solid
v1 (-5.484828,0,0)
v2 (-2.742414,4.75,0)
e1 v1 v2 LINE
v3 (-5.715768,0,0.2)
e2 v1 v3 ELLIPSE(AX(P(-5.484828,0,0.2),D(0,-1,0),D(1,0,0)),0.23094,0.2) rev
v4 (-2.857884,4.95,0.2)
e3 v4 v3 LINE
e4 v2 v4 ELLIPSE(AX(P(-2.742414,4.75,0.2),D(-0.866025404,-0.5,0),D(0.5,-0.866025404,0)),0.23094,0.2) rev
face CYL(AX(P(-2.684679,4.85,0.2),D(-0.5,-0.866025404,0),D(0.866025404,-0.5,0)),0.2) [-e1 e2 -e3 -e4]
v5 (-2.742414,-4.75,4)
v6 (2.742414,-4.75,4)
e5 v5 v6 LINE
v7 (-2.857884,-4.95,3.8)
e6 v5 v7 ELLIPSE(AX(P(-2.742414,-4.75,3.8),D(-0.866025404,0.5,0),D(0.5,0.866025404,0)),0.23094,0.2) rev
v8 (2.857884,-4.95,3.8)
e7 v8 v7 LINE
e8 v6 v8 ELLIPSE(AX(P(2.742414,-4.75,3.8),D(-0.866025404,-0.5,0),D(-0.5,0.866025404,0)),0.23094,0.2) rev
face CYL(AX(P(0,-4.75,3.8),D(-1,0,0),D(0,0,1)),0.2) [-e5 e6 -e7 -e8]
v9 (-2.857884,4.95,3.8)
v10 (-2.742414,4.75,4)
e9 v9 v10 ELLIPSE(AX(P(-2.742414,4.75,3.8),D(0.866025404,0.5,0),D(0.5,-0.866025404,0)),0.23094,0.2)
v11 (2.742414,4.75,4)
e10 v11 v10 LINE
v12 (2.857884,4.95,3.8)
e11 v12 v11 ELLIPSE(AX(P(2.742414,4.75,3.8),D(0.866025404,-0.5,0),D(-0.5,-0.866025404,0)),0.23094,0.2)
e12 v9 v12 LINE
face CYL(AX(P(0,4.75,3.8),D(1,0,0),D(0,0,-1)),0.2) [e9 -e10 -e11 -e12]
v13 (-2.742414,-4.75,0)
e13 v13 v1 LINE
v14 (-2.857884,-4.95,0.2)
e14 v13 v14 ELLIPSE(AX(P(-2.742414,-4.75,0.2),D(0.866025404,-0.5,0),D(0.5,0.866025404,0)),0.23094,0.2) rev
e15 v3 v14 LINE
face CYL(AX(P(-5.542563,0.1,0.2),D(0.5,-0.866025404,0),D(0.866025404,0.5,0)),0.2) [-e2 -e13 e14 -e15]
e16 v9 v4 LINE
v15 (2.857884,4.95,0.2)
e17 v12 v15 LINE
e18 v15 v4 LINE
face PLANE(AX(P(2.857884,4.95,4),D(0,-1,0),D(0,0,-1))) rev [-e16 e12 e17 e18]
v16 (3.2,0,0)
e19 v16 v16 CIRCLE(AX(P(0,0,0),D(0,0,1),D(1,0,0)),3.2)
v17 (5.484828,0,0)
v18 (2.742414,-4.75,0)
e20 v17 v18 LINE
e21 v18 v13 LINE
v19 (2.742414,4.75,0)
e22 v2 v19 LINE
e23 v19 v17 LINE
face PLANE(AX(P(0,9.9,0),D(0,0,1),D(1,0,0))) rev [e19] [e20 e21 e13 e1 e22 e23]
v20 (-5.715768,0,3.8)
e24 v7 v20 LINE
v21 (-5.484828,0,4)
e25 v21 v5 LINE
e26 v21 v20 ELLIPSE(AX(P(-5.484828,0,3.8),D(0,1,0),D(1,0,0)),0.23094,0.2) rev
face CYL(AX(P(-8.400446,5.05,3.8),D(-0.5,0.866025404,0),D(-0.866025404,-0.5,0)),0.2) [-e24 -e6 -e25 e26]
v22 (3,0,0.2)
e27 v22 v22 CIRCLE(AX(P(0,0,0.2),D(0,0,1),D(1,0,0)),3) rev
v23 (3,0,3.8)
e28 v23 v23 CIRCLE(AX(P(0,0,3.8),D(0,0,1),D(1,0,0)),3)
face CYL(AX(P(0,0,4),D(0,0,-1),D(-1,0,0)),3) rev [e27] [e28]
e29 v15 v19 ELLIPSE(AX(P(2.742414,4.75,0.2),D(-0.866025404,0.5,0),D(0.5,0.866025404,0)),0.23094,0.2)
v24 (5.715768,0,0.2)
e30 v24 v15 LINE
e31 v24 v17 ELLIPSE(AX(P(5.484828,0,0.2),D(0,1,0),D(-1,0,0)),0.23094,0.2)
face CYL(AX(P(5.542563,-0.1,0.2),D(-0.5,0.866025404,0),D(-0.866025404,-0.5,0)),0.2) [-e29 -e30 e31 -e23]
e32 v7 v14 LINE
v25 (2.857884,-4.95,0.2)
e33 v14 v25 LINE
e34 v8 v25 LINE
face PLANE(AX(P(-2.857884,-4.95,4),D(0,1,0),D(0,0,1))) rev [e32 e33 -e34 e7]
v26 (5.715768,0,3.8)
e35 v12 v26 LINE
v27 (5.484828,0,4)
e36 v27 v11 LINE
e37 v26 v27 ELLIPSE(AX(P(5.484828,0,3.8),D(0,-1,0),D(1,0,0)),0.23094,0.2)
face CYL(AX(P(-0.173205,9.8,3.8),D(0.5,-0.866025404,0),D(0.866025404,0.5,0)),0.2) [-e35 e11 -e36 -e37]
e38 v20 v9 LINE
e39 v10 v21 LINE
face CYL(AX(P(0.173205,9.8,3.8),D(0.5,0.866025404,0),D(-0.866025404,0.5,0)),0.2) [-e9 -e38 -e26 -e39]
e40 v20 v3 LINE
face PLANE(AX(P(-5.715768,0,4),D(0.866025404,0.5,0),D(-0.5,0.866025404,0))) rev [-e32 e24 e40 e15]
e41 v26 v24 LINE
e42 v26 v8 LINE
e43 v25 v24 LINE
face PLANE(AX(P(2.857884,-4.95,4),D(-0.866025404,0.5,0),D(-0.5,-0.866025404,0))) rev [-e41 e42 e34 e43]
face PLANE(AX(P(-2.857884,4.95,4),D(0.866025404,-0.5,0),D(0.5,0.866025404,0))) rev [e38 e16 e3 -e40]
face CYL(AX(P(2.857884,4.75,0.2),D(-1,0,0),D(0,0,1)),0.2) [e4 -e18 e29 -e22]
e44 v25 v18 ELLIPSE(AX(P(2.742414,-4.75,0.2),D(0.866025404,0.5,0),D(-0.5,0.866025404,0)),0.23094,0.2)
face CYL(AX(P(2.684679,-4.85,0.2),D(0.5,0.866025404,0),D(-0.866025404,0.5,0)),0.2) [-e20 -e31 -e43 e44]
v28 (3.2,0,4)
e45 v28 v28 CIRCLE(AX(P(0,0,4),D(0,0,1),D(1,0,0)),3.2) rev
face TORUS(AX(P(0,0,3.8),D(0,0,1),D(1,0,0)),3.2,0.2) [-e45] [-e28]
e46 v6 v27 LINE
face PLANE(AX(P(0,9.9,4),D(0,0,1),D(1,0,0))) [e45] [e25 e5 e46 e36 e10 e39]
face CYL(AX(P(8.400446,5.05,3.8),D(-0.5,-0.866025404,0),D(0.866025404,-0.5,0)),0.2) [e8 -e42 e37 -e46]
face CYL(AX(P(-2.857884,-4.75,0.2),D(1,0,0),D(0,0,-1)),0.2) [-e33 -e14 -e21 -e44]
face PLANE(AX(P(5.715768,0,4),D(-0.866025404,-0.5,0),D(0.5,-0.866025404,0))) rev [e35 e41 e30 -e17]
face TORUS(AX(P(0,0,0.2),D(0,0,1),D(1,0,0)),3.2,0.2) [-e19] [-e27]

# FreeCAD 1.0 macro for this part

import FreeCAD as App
import Part
import Sketcher

V = App.Vector
Q = App.Units.Quantity


def edges_at(feature, points):
    """Names of the edges that pass closest to the given points."""
    edges = feature.Shape.Edges
    near = lambda p: min(range(len(edges)), key=lambda i: edges[i].distToShape(Part.Vertex(*p))[0])
    return sorted({f"Edge{near(p) + 1}" for p in points})


def add_polygon(sketch, points):
    """Adds a closed chain of lines whose ends are joined by coincident constraints."""
    first, n = sketch.GeometryCount, len(points)
    for a, b in zip(points, points[1:] + points[:1]):
        sketch.addGeometry(Part.LineSegment(App.Vector(*a, 0), App.Vector(*b, 0)), False)
    for i in range(n):
        sketch.addConstraint(Sketcher.Constraint("Coincident", first + i, 2, first + (i + 1) % n, 1))

doc = App.newDocument("Part")
body = doc.addObject("PartDesign::Body", "Body")

sketch1 = body.newObject("Sketcher::SketchObject", "Sketch")
sketch1.AttachmentSupport = (doc.getObject("XY_Plane"), [""])
sketch1.MapMode = "FlatFace"
add_polygon(sketch1, [(2.9, 5), (-2.9, 5), (-5.7, 0), (-2.9, -5), (2.9, -5), (5.7, 0)])
sketch1.addGeometry(Part.Circle(V(0, 0, 0), V(0, 0, 1), 3), False)
sketch1.addConstraint(Sketcher.Constraint("Horizontal", 0))
sketch1.addConstraint(Sketcher.Constraint("Horizontal", 3))
sketch1.addConstraint(Sketcher.Constraint("Coincident", 6, 3, -1, 1))
sketch1.addConstraint(Sketcher.Constraint("Symmetric", 0, 2, 3, 2, -1, 1))
sketch1.addConstraint(Sketcher.Constraint("Symmetric", 1, 2, 4, 2, -1, 1))
sketch1.addConstraint(Sketcher.Constraint("PointOnObject", 1, 2, -1))
sketch1.addConstraint(Sketcher.Constraint("Parallel", 2, 5))
sketch1.addConstraint(Sketcher.Constraint("Vertical", 0, 2, 2, 2))
sketch1.addConstraint(Sketcher.Constraint("Diameter", 6, Q("6 mm")))
sketch1.addConstraint(Sketcher.Constraint("Angle", 1, Q("-120 deg")))
sketch1.addConstraint(Sketcher.Constraint("DistanceY", 2, 2, 0, 2, Q("9.9 mm")))
sketch1.addConstraint(Sketcher.Constraint("DistanceX", 0, 2, 0, 1, Q("5.715768 mm")))
pad1 = body.newObject("PartDesign::Pad", "Pad")
pad1.Profile = sketch1
pad1.Length = 4
doc.recompute()

fillet = body.newObject("PartDesign::Fillet", "Fillet")
fillet.Base = (pad1, edges_at(pad1, [
    (-4.287, 2.475, 4),
    (-4.287, -2.475, 4),
    (-3, 0, 0),
    (0, -4.95, 4),
    (-3, 0, 4),
    (4.287, -2.475, 4),
    (4.287, 2.475, 4),
    (4.287, -2.475, 0),
    (0, -4.95, 0),
    (-4.287, -2.475, 0),
    (-4.287, 2.475, 0),
    (0, 4.95, 4),
    (0, 4.95, 0),
    (4.287, 2.475, 0),
]))
fillet.Radius = 0.2

doc.recompute()
